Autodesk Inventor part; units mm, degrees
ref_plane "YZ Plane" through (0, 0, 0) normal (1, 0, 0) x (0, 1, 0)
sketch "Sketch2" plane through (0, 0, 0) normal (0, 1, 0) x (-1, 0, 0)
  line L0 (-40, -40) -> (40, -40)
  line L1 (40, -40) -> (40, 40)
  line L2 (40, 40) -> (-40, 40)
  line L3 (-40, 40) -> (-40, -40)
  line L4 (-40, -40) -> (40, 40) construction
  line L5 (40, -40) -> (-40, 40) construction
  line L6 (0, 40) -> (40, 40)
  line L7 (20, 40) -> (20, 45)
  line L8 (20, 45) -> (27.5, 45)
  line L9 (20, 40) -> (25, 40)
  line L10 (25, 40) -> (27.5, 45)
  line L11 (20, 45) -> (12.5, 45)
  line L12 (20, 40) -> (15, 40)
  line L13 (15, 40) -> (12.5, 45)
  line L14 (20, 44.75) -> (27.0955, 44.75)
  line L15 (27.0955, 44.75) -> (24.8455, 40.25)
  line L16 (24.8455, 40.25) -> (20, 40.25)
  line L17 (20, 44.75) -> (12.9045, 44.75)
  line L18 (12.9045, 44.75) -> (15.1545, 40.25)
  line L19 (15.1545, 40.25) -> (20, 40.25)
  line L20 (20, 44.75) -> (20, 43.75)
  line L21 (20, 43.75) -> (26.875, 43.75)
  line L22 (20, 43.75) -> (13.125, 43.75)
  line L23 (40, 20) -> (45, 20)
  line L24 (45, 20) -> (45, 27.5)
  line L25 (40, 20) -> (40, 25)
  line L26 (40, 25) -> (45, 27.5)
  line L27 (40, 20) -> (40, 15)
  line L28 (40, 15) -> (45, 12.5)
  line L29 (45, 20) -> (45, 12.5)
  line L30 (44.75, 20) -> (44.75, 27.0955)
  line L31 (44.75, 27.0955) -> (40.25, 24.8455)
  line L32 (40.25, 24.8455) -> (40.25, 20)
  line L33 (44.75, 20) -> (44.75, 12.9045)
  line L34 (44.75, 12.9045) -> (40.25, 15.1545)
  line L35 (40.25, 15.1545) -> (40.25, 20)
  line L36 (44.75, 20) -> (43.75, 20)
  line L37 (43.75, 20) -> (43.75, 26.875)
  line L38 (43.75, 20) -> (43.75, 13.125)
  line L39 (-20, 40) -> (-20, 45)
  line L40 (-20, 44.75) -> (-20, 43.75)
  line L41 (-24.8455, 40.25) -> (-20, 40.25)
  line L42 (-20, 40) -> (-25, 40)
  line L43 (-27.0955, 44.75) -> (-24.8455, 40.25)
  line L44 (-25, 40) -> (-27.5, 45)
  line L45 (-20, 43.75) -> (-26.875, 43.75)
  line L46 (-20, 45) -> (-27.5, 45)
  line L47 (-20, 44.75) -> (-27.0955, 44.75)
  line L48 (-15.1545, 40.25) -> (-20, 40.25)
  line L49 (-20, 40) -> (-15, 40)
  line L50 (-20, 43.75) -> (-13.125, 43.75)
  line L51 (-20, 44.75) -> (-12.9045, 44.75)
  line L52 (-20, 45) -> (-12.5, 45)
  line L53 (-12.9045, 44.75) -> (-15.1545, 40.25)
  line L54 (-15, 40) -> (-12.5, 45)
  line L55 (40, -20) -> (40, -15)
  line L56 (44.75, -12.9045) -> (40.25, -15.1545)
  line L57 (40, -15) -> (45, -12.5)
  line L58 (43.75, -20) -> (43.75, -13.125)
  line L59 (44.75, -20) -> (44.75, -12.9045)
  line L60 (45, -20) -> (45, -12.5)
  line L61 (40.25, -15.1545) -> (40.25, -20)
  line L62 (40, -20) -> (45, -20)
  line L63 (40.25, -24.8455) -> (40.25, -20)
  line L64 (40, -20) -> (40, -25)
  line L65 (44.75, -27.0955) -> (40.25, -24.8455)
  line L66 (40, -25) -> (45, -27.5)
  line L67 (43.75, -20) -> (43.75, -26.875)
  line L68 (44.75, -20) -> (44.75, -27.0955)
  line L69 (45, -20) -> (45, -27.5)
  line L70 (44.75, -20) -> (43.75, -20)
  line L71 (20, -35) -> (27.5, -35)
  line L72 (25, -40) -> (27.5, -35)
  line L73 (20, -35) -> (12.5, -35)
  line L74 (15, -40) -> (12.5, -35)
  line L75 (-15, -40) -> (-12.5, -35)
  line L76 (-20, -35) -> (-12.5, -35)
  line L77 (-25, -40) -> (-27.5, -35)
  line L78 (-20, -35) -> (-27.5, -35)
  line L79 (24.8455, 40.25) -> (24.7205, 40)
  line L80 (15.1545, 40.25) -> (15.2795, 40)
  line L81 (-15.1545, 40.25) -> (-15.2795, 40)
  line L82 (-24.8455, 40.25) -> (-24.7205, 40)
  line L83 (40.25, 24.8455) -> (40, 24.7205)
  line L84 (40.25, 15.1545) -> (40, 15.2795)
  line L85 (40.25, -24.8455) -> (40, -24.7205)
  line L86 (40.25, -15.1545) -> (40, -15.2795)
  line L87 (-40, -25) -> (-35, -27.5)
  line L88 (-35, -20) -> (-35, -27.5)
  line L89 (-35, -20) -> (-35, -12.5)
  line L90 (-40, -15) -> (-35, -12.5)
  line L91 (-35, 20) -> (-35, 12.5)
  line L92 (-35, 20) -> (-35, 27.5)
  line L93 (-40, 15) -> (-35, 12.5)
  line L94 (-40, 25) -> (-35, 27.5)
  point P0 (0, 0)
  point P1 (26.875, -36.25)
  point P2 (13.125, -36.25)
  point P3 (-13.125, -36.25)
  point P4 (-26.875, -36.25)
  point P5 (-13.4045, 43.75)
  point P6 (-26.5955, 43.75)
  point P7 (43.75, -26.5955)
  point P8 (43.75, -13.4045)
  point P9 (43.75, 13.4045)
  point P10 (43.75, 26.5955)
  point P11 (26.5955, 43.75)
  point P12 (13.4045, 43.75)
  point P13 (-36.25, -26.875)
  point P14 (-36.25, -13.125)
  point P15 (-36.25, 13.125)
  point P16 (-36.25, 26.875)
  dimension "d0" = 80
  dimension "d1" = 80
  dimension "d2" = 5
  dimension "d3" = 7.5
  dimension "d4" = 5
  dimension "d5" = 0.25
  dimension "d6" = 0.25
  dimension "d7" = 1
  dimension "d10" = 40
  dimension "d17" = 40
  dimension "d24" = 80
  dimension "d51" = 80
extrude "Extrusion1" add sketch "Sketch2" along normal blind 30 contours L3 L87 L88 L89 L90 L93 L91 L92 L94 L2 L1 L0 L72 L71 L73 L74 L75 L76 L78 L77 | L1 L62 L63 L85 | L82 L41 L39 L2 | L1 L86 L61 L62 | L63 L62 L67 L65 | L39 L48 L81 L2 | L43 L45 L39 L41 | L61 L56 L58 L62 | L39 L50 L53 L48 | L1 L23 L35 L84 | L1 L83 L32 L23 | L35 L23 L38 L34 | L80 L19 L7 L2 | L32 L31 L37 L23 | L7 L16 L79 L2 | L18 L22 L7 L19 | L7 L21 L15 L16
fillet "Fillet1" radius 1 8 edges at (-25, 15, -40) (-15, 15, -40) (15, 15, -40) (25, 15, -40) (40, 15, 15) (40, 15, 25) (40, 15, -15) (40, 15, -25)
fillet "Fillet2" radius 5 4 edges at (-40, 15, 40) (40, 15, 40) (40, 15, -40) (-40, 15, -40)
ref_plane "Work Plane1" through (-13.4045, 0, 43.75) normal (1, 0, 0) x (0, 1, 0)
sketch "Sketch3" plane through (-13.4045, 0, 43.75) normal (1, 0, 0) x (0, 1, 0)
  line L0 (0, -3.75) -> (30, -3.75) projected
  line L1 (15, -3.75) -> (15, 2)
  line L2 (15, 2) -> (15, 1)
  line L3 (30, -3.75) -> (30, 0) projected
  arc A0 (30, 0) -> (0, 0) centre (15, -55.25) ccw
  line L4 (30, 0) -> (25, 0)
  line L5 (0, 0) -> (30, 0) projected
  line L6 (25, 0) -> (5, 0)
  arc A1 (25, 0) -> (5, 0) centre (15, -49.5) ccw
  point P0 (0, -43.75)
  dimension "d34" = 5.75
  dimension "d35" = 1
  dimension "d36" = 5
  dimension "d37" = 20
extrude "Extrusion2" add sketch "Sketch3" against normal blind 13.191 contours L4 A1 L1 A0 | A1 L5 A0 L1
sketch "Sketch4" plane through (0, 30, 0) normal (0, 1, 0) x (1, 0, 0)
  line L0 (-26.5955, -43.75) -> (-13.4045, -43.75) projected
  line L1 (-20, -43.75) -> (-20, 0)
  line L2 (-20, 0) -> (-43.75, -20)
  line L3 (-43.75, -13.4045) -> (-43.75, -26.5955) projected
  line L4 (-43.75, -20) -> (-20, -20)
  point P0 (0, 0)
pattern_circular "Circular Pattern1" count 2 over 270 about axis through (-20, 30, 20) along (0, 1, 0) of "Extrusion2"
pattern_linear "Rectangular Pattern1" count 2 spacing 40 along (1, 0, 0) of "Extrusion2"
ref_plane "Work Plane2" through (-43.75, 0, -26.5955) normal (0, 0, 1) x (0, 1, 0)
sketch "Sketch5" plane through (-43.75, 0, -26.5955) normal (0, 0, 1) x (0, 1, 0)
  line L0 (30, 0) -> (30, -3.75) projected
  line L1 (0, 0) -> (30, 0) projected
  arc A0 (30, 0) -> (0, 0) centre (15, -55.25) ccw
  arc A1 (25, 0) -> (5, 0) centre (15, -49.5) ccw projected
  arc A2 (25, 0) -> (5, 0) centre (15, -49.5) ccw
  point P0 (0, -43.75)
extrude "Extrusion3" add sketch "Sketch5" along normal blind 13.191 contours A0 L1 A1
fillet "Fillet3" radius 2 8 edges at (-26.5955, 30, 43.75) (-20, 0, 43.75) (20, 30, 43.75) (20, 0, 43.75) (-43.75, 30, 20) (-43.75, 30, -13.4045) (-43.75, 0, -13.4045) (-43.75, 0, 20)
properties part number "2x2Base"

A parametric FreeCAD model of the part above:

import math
import FreeCAD as App
import Part
import Sketcher

V = App.Vector


def edges_at(feature, points):
    """Names of the edges that pass closest to the given points."""
    edges = feature.Shape.Edges
    near = lambda p: min(range(len(edges)), key=lambda i: edges[i].distToShape(Part.Vertex(*p))[0])
    return sorted({f"Edge{near(p) + 1}" for p in points})


def add_polygon(sketch, points):
    """Adds a closed chain of lines whose ends are joined by coincident constraints."""
    first, n = sketch.GeometryCount, len(points)
    for a, b in zip(points, points[1:] + points[:1]):
        sketch.addGeometry(Part.LineSegment(App.Vector(*a, 0), App.Vector(*b, 0)), False)
    for i in range(n):
        sketch.addConstraint(Sketcher.Constraint("Coincident", first + i, 2, first + (i + 1) % n, 1))

doc = App.newDocument("Part")
body = doc.addObject("PartDesign::Body", "Body")

sketch1 = body.newObject("Sketcher::SketchObject", "Sketch")
sketch1.AttachmentSupport = (doc.getObject("XZ_Plane"), [""])
sketch1.MapMode = "FlatFace"
add_polygon(sketch1, [(40, -25), (40, -40), (25, -40), (27.5, -35), (12.5, -35), (15, -40), (-15, -40), (-12.5, -35), (-27.5, -35), (-25, -40), (-40, -40), (-40, -24.7), (-43.8, -26.6), (-43.8, -13.4), (-40, -15.3), (-40, 15.3), (-43.8, 13.4), (-43.8, 26.6), (-40, 24.7), (-40, 40), (-24.7, 40), (-26.6, 43.8), (-13.4, 43.8), (-15.3, 40), (15.3, 40), (13.4, 43.8), (26.6, 43.8), (24.7, 40), (40, 40), (40, 25), (35, 27.5), (35, 12.5), (40, 15), (40, -15), (35, -12.5), (35, -27.5)])
sketch1.addConstraint([
    Sketcher.Constraint("Vertical", 0),
    Sketcher.Constraint("Horizontal", 1),
    Sketcher.Constraint("Horizontal", 3),
    Sketcher.Constraint("Horizontal", 5),
    Sketcher.Constraint("Horizontal", 7),
    Sketcher.Constraint("Horizontal", 9),
    Sketcher.Constraint("Vertical", 10),
    Sketcher.Constraint("Vertical", 12),
    Sketcher.Constraint("Vertical", 14),
    Sketcher.Constraint("Vertical", 16),
    Sketcher.Constraint("Vertical", 18),
    Sketcher.Constraint("Horizontal", 19),
    Sketcher.Constraint("Horizontal", 21),
    Sketcher.Constraint("Horizontal", 23),
    Sketcher.Constraint("Horizontal", 25),
    Sketcher.Constraint("Horizontal", 27),
    Sketcher.Constraint("Vertical", 28),
    Sketcher.Constraint("Vertical", 30),
    Sketcher.Constraint("Vertical", 32),
    Sketcher.Constraint("Vertical", 34),
    Sketcher.Constraint("Symmetric", 0, 2, 18, 2, -1, 1),
    Sketcher.Constraint("Symmetric", 9, 2, 27, 2, -1, 1),
    Sketcher.Constraint("Symmetric", 3, 2, 6, 2, -2),
    Sketcher.Constraint("Symmetric", 1, 2, 8, 2, -2),
    Sketcher.Constraint("Symmetric", 21, 2, 24, 2, -2),
    Sketcher.Constraint("Symmetric", 12, 2, 15, 2, -1),
    Sketcher.Constraint("Symmetric", 10, 2, 17, 2, -1),
    Sketcher.Constraint("Symmetric", 30, 2, 33, 2, -1),
    Sketcher.Constraint("Parallel", 2, 6),
    Sketcher.Constraint("Parallel", 4, 8),
    Sketcher.Constraint("Perpendicular", 8, 11),
    Sketcher.Constraint("Perpendicular", 6, 13),
    Sketcher.Constraint("Parallel", 11, 15),
    Sketcher.Constraint("Parallel", 13, 17),
    Sketcher.Constraint("Perpendicular", 15, 20),
    Sketcher.Constraint("Perpendicular", 17, 22),
    Sketcher.Constraint("Parallel", 20, 24),
    Sketcher.Constraint("Parallel", 22, 26),
    Sketcher.Constraint("Perpendicular", 26, 29),
    Sketcher.Constraint("Perpendicular", 24, 31),
    Sketcher.Constraint("Parallel", 29, 33),
    Sketcher.Constraint("Parallel", 31, 35),
    Sketcher.Constraint("Horizontal", 1, 2, 4, 2),
    Sketcher.Constraint("Horizontal", 19, 2, 22, 2),
    Sketcher.Constraint("Vertical", 10, 2, 13, 2),
    Sketcher.Constraint("Vertical", 28, 2, 31, 2),
    Sketcher.Constraint("Equal", 1, 3),
    Sketcher.Constraint("Equal", 3, 7),
    Sketcher.Constraint("Equal", 21, 25),
    Sketcher.Constraint("Equal", 9, 0),
    Sketcher.Constraint("Equal", 27, 10),
    Sketcher.Constraint("Equal", 25, 12),
    Sketcher.Constraint("Equal", 23, 14),
    Sketcher.Constraint("Equal", 0, 28),
    Sketcher.Constraint("Equal", 28, 30),
    Sketcher.Constraint("Equal", 5, 32),
    Sketcher.Constraint("Equal", 17, 20),
    Sketcher.Constraint("DistanceX", -1, 1, 0, 2, 40.0),
    Sketcher.Constraint("DistanceY", 1, 2, 2, 2, 5.0),
    Sketcher.Constraint("DistanceX", 4, 2, 1, 2, 10.0),
    Sketcher.Constraint("DistanceX", 5, 2, 1, 2, 40.0),
    Sketcher.Constraint("DistanceY", 10, 2, 14, 2, 40.0),
    Sketcher.Constraint("DistanceX", 21, 1, 21, 2, 13.191),
    Sketcher.Constraint("DistanceX", 23, 1, 23, 2, 30.559),
])
pad1 = body.newObject("PartDesign::Pad", "Pad")
pad1.Profile = sketch1
pad1.Length = 30
pad1.Reversed = True
doc.recompute()

fillet = body.newObject("PartDesign::Fillet", "Fillet")
fillet.Base = (pad1, edges_at(pad1, [
    (-25, 15, -40),
    (-15, 15, -40),
    (15, 15, -40),
    (25, 15, -40),
    (40, 15, 15),
    (40, 15, 25),
    (40, 15, -15),
    (40, 15, -25),
]))
fillet.Radius = 1
doc.recompute()

fillet2 = body.newObject("PartDesign::Fillet", "Fillet001")
fillet2.Base = (fillet, edges_at(fillet, [
    (-40, 15, 40),
    (40, 15, 40),
    (40, 15, -40),
    (-40, 15, -40),
]))
fillet2.Radius = 5

sketch2 = body.newObject("Sketcher::SketchObject", "Sketch001")
sketch2.AttachmentSupport = (doc.getObject("YZ_Plane"), [""])
sketch2.MapMode = "FlatFace"
sketch2.AttachmentOffset = App.Placement(V(0, 0, -13.4045), App.Rotation())
sketch2.addGeometry([
    Part.LineSegment(V(25, 44, 0), V(30, 44, 0)),
    Part.ArcOfCircle(Part.Circle(V(15, -12, 0), V(0, 0, 1), 57), math.radians(75), math.radians(105)),
    Part.LineSegment(V(0, 44, 0), V(5, 44, 0)),
    Part.ArcOfCircle(Part.Circle(V(15, -6, 0), V(0, 0, 1), 50), math.radians(79), math.radians(101)),
], False)
sketch2.addConstraint([
    Sketcher.Constraint("Coincident", 0, 2, 1, 1),
    Sketcher.Constraint("Coincident", 1, 2, 2, 1),
    Sketcher.Constraint("Coincident", 2, 2, 3, 2),
    Sketcher.Constraint("Coincident", 3, 1, 0, 1),
    Sketcher.Constraint("Horizontal", 0),
    Sketcher.Constraint("Horizontal", 2),
    Sketcher.Constraint("PointOnObject", 1, 2, -2),
    Sketcher.Constraint("Horizontal", 0, 2, 1, 2),
    Sketcher.Constraint("Vertical", 1, 3, 3, 3),
    Sketcher.Constraint("DistanceX", 0, 1, 0, 2, 5.0),
    Sketcher.Constraint("DistanceX", 2, 2, 3, 1, 20.0),
    Sketcher.Constraint("Radius", 3, 50.5),
    Sketcher.Constraint("DistanceY", 3, 3, -1, 1, 5.75),
    Sketcher.Constraint("Radius", 1, 57.25),
])
pad2 = body.newObject("PartDesign::Pad", "Pad001")
pad2.Profile = sketch2
pad2.Length = 13.191
pad2.Reversed = True
doc.recompute()

datumline = body.newObject("PartDesign::Line", "DatumLine")
datumline.Placement = App.Placement(V(-20, 0, 20), App.Rotation(V(0, 0, 1), V(0, 1, 0)))
polarpattern = body.newObject("PartDesign::PolarPattern", "PolarPattern")
polarpattern.Originals = [pad2]
polarpattern.Axis = (datumline, [""])
polarpattern.Angle = 90
polarpattern.Occurrences = 2
polarpattern.Reversed = True
body.Tip = polarpattern
doc.recompute()

linearpattern = body.newObject("PartDesign::LinearPattern", "LinearPattern")
linearpattern.Originals = [pad2]
linearpattern.Direction = (doc.getObject("X_Axis"), [""])
linearpattern.Mode = "offset"
linearpattern.Offset = 40
linearpattern.Occurrences = 2
body.Tip = linearpattern

sketch3 = body.newObject("Sketcher::SketchObject", "Sketch002")
sketch3.AttachmentSupport = (doc.getObject("XY_Plane"), [""])
sketch3.MapMode = "FlatFace"
sketch3.AttachmentOffset = App.Placement(V(0, 0, -26.5955), App.Rotation())
sketch3.addGeometry([
    Part.ArcOfCircle(Part.Circle(V(12, 15, 0), V(0, 0, 1), 57), math.radians(165), math.radians(195)),
    Part.LineSegment(V(-44, 0, 0), V(-44, 5, 0)),
    Part.ArcOfCircle(Part.Circle(V(6, 15, 0), V(0, 0, 1), 50), math.radians(169), math.radians(191)),
    Part.LineSegment(V(-44, 25, 0), V(-44, 30, 0)),
], False)
sketch3.addConstraint([
    Sketcher.Constraint("Coincident", 0, 2, 1, 1),
    Sketcher.Constraint("Coincident", 1, 2, 2, 2),
    Sketcher.Constraint("Coincident", 2, 1, 3, 1),
    Sketcher.Constraint("Coincident", 3, 2, 0, 1),
    Sketcher.Constraint("Vertical", 1),
    Sketcher.Constraint("Vertical", 3),
    Sketcher.Constraint("PointOnObject", 0, 2, -1),
    Sketcher.Constraint("Horizontal", 0, 3, 2, 3),
    Sketcher.Constraint("Vertical", 1, 2, 2, 1),
    Sketcher.Constraint("Radius", 2, 50.5),
    Sketcher.Constraint("DistanceY", 1, 1, 1, 2, 5.0),
    Sketcher.Constraint("Radius", 0, 57.25),
    Sketcher.Constraint("DistanceY", -1, 1, 0, 3, 15.0),
    Sketcher.Constraint("DistanceX", -1, 1, 0, 3, 11.5),
])
pad3 = body.newObject("PartDesign::Pad", "Pad002")
pad3.Profile = sketch3
pad3.Length = 13.191
doc.recompute()

fillet3 = body.newObject("PartDesign::Fillet", "Fillet002")
fillet3.Base = (pad3, edges_at(pad3, [
    (-26.596, 30, 43.75),
    (-20, 0, 43.75),
    (20, 30, 43.75),
    (20, 0, 43.75),
    (-43.75, 30, 20),
    (-43.75, 30, -13.405),
    (-43.75, 0, -13.405),
    (-43.75, 0, 20),
]))
fillet3.Radius = 2

doc.recompute()
